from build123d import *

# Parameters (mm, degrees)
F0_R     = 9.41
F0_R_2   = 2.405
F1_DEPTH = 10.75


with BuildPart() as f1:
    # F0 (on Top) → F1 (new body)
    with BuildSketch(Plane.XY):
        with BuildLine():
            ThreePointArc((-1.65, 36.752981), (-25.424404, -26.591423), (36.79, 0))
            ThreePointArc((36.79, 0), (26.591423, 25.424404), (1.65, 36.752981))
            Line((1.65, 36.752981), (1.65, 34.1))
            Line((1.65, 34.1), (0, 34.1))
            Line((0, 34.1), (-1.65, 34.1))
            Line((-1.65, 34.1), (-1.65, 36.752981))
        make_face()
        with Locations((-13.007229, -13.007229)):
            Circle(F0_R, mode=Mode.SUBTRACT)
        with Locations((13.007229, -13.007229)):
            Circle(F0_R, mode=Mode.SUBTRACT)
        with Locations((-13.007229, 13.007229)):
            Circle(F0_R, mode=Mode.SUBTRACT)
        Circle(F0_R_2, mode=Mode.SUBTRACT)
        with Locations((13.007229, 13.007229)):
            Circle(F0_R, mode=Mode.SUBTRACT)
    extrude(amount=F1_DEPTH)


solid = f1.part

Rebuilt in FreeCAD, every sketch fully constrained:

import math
import FreeCAD as App
import Part
import Sketcher

V = App.Vector
Q = App.Units.Quantity

doc = App.newDocument("Part")
body = doc.addObject("PartDesign::Body", "Body")

# Sketch on XY plane
sketch1 = doc.addObject("Sketcher::SketchObject", "Sketch")
body.addObject(sketch1)
sketch1.AttachmentSupport = (doc.XY_Plane, [""])
sketch1.MapMode = "FlatFace"
sketch1.addGeometry(Part.ArcOfCircle(Part.Circle(V(0, 0, 0), V(0, 0, 1), 36.8), math.radians(93), math.radians(360)), False)
sketch1.addGeometry(Part.ArcOfCircle(Part.Circle(V(0, 0, 0), V(0, 0, 1), 36.8), math.radians(0), math.radians(87)), False)
sketch1.addGeometry(Part.LineSegment(V(1.6, 36.8, 0), V(1.6, 34.1, 0)), False)
sketch1.addGeometry(Part.LineSegment(V(1.6, 34.1, 0), V(-1.6, 34.1, 0)), False)
sketch1.addGeometry(Part.LineSegment(V(-1.6, 34.1, 0), V(-1.6, 36.8, 0)), False)
sketch1.addGeometry(Part.Circle(V(-13, -13, 0), V(0, 0, 1), 9.4), False)
sketch1.addGeometry(Part.Circle(V(0, 0, 0), V(0, 0, 1), 2.4), False)
sketch1.addGeometry(Part.Circle(V(13, -13, 0), V(0, 0, 1), 9.4), False)
sketch1.addGeometry(Part.Circle(V(-13, 13, 0), V(0, 0, 1), 9.4), False)
sketch1.addGeometry(Part.Circle(V(13, 13, 0), V(0, 0, 1), 9.4), False)
sketch1.addConstraint(Sketcher.Constraint("Tangent", 0, 2, 1, 1))
sketch1.addConstraint(Sketcher.Constraint("Coincident", 1, 2, 2, 1))
sketch1.addConstraint(Sketcher.Constraint("Coincident", 2, 2, 3, 1))
sketch1.addConstraint(Sketcher.Constraint("Coincident", 3, 2, 4, 1))
sketch1.addConstraint(Sketcher.Constraint("Coincident", 4, 2, 0, 1))
sketch1.addConstraint(Sketcher.Constraint("Vertical", 2))
sketch1.addConstraint(Sketcher.Constraint("Horizontal", 3))
sketch1.addConstraint(Sketcher.Constraint("Vertical", 4))
sketch1.addConstraint(Sketcher.Constraint("Coincident", 0, 3, -1, 1))
sketch1.addConstraint(Sketcher.Constraint("Coincident", 6, 3, -1, 1))
sketch1.addConstraint(Sketcher.Constraint("Equal", 0, 1))
sketch1.addConstraint(Sketcher.Constraint("Equal", 5, 7))
sketch1.addConstraint(Sketcher.Constraint("Equal", 7, 8))
sketch1.addConstraint(Sketcher.Constraint("Equal", 8, 9))
sketch1.addConstraint(Sketcher.Constraint("Symmetric", 7, 3, 8, 3, -1, 1))
sketch1.addConstraint(Sketcher.Constraint("Symmetric", 5, 3, 9, 3, -1, 1))
sketch1.addConstraint(Sketcher.Constraint("Symmetric", 5, 3, 7, 3, -2))
sketch1.addConstraint(Sketcher.Constraint("PointOnObject", 0, 2, -1))
sketch1.addConstraint(Sketcher.Constraint("Horizontal", 1, 2, 4, 2))
sketch1.addConstraint(Sketcher.Constraint("Diameter", 5, Q("18.82 mm")))
sketch1.addConstraint(Sketcher.Constraint("Diameter", 6, Q("4.81 mm")))
sketch1.addConstraint(Sketcher.Constraint("Radius", 0, Q("36.79 mm")))
sketch1.addConstraint(Sketcher.Constraint("DistanceX", 3, 2, 3, 1, Q("3.3 mm")))
sketch1.addConstraint(Sketcher.Constraint("DistanceY", -1, 1, 2, 2, Q("34.1 mm")))
sketch1.addConstraint(Sketcher.Constraint("DistanceX", 5, 3, -1, 1, Q("13.007229 mm")))
sketch1.addConstraint(Sketcher.Constraint("DistanceY", 5, 3, -1, 1, Q("13.007229 mm")))
pad1 = doc.addObject("PartDesign::Pad", "Pad")
body.addObject(pad1)
pad1.Profile = sketch1
pad1.Length = 10.75

doc.recompute()
